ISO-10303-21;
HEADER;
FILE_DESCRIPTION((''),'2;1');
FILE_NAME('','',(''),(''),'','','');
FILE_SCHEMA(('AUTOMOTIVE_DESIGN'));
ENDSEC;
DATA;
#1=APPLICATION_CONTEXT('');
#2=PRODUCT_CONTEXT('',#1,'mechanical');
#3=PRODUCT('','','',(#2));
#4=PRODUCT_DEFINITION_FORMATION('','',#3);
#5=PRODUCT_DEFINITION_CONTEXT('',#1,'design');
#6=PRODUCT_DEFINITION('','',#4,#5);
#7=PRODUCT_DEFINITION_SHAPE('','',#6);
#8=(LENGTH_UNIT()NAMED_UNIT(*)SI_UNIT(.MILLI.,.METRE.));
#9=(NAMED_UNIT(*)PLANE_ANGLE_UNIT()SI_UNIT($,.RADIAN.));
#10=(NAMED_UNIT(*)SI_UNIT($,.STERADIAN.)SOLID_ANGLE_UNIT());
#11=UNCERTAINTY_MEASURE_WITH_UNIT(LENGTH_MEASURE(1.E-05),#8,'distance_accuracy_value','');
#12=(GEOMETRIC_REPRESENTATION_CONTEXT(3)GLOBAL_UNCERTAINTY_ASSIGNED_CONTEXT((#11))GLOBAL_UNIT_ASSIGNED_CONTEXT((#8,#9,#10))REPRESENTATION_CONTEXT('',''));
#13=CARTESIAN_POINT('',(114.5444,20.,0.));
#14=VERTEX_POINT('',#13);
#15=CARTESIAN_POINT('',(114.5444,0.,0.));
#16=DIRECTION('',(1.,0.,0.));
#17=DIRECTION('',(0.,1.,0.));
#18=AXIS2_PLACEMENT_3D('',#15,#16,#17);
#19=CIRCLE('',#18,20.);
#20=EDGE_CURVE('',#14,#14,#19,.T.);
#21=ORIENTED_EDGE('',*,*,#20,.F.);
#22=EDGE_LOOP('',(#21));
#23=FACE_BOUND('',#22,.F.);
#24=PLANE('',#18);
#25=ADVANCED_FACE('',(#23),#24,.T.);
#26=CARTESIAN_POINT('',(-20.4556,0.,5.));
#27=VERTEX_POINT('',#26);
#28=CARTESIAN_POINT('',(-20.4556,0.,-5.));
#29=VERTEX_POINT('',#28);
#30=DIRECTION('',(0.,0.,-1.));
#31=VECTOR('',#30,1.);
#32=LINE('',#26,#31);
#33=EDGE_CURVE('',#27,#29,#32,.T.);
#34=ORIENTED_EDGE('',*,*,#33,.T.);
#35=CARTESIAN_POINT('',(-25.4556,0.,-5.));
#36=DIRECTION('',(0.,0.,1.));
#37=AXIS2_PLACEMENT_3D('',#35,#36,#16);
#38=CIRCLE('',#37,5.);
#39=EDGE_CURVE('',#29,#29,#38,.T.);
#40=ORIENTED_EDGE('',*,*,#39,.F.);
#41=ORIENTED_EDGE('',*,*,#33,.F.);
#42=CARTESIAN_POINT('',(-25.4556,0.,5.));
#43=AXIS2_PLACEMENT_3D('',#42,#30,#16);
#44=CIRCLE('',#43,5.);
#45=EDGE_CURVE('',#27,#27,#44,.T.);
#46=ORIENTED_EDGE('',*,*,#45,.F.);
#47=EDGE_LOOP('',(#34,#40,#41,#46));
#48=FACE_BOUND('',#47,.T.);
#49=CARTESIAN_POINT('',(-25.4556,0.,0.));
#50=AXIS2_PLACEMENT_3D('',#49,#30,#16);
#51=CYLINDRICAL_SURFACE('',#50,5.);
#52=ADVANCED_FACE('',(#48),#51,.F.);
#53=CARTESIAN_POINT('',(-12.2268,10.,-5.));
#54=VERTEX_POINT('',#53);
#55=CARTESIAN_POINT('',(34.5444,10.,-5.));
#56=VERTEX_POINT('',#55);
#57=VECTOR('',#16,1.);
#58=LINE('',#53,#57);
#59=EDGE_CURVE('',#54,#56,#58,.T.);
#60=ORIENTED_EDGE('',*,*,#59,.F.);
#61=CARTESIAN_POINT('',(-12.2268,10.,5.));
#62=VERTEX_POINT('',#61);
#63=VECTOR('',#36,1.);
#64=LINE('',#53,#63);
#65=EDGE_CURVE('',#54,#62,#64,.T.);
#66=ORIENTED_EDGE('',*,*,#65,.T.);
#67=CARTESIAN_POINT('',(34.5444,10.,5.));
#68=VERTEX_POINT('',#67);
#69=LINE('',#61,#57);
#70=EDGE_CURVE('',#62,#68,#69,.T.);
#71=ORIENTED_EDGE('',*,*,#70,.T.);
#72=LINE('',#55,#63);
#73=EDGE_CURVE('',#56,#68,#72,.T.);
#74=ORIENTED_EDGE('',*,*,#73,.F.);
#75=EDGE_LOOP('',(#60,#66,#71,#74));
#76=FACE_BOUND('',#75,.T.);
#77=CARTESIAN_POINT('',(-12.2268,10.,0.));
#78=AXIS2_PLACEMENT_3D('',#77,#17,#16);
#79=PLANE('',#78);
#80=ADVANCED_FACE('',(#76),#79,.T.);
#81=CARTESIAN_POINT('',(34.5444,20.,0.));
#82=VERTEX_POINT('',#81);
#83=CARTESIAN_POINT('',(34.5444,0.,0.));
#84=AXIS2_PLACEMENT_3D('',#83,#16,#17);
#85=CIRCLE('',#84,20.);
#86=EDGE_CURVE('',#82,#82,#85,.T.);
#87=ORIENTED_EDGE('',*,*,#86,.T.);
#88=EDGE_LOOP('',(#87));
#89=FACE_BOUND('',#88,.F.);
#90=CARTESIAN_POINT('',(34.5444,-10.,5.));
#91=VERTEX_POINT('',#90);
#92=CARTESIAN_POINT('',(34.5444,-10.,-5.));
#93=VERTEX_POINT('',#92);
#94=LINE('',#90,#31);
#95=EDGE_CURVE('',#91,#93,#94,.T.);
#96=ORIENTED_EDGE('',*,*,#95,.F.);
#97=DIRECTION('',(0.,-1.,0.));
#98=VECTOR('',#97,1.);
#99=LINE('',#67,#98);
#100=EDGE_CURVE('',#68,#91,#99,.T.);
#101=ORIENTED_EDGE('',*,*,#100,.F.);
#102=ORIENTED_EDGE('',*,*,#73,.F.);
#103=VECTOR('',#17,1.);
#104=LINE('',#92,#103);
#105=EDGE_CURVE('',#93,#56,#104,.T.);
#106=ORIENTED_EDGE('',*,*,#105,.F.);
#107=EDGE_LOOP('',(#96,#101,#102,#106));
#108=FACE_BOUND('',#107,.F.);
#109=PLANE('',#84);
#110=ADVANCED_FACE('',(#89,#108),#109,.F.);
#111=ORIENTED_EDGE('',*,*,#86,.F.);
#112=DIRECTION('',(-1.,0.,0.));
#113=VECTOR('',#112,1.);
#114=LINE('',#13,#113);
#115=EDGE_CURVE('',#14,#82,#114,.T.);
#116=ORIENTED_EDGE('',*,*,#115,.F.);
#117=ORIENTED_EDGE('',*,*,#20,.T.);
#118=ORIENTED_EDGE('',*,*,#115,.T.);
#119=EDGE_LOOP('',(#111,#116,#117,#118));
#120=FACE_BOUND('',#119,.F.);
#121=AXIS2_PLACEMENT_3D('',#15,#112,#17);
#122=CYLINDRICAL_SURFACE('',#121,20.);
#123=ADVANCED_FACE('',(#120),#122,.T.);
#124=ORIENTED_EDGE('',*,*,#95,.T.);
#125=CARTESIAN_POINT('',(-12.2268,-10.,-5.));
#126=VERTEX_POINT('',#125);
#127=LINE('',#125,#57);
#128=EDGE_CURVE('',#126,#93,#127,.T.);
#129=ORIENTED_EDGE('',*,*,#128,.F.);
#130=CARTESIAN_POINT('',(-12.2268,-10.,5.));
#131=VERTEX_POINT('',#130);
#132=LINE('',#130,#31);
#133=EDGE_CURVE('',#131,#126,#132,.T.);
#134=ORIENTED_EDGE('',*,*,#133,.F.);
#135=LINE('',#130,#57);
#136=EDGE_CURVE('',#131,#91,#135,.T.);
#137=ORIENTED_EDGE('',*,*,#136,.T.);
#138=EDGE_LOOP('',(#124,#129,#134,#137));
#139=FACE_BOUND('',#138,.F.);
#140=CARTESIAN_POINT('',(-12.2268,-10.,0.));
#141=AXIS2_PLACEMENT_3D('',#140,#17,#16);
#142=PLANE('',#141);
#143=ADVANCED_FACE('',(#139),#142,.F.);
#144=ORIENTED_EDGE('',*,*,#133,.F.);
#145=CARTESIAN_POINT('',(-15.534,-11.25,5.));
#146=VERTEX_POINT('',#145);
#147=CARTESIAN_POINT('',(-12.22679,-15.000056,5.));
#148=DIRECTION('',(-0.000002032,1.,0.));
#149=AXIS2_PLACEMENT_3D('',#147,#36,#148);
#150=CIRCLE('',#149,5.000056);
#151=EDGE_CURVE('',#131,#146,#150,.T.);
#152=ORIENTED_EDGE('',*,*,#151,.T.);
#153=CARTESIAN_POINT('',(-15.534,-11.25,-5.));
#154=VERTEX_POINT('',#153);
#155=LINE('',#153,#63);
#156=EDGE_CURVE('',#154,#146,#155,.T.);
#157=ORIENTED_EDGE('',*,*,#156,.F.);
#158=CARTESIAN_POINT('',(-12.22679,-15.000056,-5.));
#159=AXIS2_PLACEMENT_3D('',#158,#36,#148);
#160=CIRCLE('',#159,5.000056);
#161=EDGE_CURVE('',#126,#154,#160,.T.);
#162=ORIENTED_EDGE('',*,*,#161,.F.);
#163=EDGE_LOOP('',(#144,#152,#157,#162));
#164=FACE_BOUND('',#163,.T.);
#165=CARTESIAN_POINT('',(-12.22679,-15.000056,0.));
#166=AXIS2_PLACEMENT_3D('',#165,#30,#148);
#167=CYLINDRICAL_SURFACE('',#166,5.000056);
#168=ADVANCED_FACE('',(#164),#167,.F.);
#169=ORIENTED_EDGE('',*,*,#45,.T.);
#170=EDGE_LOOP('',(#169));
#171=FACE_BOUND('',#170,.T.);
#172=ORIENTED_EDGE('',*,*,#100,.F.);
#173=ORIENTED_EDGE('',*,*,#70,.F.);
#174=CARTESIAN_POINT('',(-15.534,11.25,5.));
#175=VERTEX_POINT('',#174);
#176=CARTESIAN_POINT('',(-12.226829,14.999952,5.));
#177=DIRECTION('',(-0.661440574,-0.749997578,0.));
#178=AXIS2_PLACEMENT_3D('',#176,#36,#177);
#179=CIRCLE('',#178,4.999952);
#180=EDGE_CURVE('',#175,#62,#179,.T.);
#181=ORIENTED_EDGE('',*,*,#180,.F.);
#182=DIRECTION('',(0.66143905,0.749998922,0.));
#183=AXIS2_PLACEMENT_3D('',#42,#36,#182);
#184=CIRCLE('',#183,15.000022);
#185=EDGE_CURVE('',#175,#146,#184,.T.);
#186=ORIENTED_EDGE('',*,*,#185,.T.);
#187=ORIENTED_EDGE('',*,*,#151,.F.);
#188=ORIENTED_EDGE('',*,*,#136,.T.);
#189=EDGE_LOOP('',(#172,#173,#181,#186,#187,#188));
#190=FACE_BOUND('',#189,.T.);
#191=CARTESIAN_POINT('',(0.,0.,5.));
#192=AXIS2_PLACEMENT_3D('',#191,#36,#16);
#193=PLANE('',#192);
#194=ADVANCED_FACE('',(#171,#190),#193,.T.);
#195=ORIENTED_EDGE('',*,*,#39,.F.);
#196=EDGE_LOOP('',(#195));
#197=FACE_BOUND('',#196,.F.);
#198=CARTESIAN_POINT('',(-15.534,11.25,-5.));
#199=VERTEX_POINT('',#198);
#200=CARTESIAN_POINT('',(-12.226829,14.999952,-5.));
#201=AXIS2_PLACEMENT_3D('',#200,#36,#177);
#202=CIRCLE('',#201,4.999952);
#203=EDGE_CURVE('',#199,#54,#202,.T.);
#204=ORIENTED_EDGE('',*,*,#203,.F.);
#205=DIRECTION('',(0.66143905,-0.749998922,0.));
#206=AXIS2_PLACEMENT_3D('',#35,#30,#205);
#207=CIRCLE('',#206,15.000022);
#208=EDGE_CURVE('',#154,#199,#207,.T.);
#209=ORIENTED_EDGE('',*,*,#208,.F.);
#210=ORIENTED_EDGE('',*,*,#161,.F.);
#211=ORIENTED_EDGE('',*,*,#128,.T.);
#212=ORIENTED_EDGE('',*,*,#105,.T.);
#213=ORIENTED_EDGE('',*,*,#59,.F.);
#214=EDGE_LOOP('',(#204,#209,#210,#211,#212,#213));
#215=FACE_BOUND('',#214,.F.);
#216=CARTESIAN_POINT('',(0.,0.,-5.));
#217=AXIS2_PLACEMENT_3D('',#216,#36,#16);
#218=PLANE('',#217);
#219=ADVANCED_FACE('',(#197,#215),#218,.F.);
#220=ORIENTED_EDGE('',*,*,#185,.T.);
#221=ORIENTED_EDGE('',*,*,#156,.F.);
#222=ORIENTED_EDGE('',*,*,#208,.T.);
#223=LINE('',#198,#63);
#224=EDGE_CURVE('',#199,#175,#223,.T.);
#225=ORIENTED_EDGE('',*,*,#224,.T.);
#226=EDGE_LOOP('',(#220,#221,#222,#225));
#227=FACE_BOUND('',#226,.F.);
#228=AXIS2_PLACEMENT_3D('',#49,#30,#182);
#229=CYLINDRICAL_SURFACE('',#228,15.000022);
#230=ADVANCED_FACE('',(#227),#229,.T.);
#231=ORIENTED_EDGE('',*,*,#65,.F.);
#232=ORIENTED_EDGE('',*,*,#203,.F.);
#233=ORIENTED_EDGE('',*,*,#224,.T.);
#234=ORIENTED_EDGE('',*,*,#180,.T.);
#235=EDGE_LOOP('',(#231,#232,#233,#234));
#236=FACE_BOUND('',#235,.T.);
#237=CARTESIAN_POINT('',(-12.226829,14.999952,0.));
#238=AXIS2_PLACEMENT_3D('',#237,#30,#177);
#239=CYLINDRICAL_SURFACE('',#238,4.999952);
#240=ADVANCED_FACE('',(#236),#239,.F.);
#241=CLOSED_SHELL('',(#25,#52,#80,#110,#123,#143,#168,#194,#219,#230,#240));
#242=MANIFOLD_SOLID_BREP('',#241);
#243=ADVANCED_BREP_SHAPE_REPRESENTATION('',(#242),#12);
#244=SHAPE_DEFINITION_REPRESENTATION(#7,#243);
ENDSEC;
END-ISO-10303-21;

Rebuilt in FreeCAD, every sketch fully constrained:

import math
import FreeCAD as App
import Part
import Sketcher

V = App.Vector
Q = App.Units.Quantity


def add_polygon(sketch, points):
    """Adds a closed chain of lines whose ends are joined by coincident constraints."""
    first, n = sketch.GeometryCount, len(points)
    for a, b in zip(points, points[1:] + points[:1]):
        sketch.addGeometry(Part.LineSegment(App.Vector(*a, 0), App.Vector(*b, 0)), False)
    for i in range(n):
        sketch.addConstraint(Sketcher.Constraint("Coincident", first + i, 2, first + (i + 1) % n, 1))

doc = App.newDocument("Part")
params = doc.addObject("Spreadsheet::Sheet", "Params")
for row, (alias, value) in enumerate([
    ("sketch1_diameter", "10 mm"),
    ("sketch1_radius", "15 mm"),
    ("sketch1_height", "20 mm"),
    ("pad1_length", "5 mm"),
    ("pad1_length2", "5 mm"),
    ("sketch2_width", "80 mm"),
    ("sketch2_height", "20 mm"),
    ("revolution_angle", "360 deg"),
], start=1):
    params.set(f"A{row}", alias)
    params.set(f"B{row}", "=" + value)
    params.setAlias(f"B{row}", alias)

body = doc.addObject("PartDesign::Body", "Body")

# Sketch on XY plane
sketch1 = body.newObject("Sketcher::SketchObject", "Sketch")
sketch1.AttachmentSupport = (doc.getObject("XY_Plane"), [""])
sketch1.MapMode = "FlatFace"
sketch1.addGeometry([
    Part.LineSegment(V(34.5, 10, 0), V(-12.2, 10, 0)),  # 0
    Part.ArcOfCircle(Part.Circle(V(-12.2, 15, 0), V(0, 0, 1), 5), math.radians(-131), math.radians(-90)),  # 1
    Part.ArcOfCircle(Part.Circle(V(-25.5, 0, 0), V(0, 0, 1), 15), math.radians(49), math.radians(311)),  # 2
    Part.ArcOfCircle(Part.Circle(V(-12.2, -15, 0), V(0, 0, 1), 5), math.radians(90), math.radians(131)),  # 3
    Part.LineSegment(V(-12.2, -10, 0), V(34.5, -10, 0)),  # 4
    Part.LineSegment(V(34.5, -10, 0), V(34.5, 10, 0)),  # 5
    Part.Circle(V(-25.5, 0, 0), V(0, 0, 1), 5),  # 6
], False)
sketch1.addConstraint([
    Sketcher.Constraint("Tangent", 0, 2, 1, 2),
    Sketcher.Constraint("Tangent", 1, 1, 2, 1),
    Sketcher.Constraint("Tangent", 2, 2, 3, 2),
    Sketcher.Constraint("Tangent", 3, 1, 4, 1),
    Sketcher.Constraint("Coincident", 4, 2, 5, 1),
    Sketcher.Constraint("Coincident", 5, 2, 0, 1),
    Sketcher.Constraint("Horizontal", 0),
    Sketcher.Constraint("Horizontal", 4),
    Sketcher.Constraint("Vertical", 5),
    Sketcher.Constraint("Coincident", 6, 3, 2, 3),
    Sketcher.Constraint("Equal", 1, 3),
    Sketcher.Constraint("Equal", 3, 6),
    Sketcher.Constraint("Symmetric", 1, 3, 3, 3, -1),
    Sketcher.Constraint("Diameter", 6, Q("10 mm")),
    Sketcher.Constraint("Radius", 2, Q("15 mm")),
    Sketcher.Constraint("DistanceY", 5, 1, 5, 2, Q("20 mm")),
    Sketcher.Constraint("DistanceX", 0, 2, 0, 1, Q("46.7712 mm")),
    Sketcher.Constraint("DistanceX", 1, 1, -1, 1, Q("15.534 mm")),
])
sketch1.setExpression("Constraints[13]", "Params.sketch1_diameter")
sketch1.setExpression("Constraints[14]", "Params.sketch1_radius")
sketch1.setExpression("Constraints[15]", "Params.sketch1_height")
pad1 = body.newObject("PartDesign::Pad", "Pad")
pad1.Profile = sketch1
pad1.Type = "TwoLengths"
pad1.setExpression("Length", "Params.pad1_length")
pad1.setExpression("Length2", "Params.pad1_length2")

# Sketch on XY plane
sketch2 = body.newObject("Sketcher::SketchObject", "Sketch001")
sketch2.AttachmentSupport = (doc.getObject("XY_Plane"), [""])
sketch2.MapMode = "FlatFace"
add_polygon(sketch2, [(35, 20), (35, 0), (115, 0), (115, 20)])  # lines 0-3
sketch2.addConstraint([
    Sketcher.Constraint("Vertical", 0),
    Sketcher.Constraint("Horizontal", 1),
    Sketcher.Constraint("Vertical", 2),
    Sketcher.Constraint("Horizontal", 3),
    Sketcher.Constraint("PointOnObject", 0, 2, -1),
    Sketcher.Constraint("DistanceX", 1, 1, 1, 2, Q("80 mm")),
    Sketcher.Constraint("DistanceY", 0, 2, 0, 1, Q("20 mm")),
    Sketcher.Constraint("DistanceX", -1, 1, 0, 2, Q("34.5444 mm")),
])
sketch2.setExpression("Constraints[9]", "Params.sketch2_width")
sketch2.setExpression("Constraints[10]", "Params.sketch2_height")
revolution = body.newObject("PartDesign::Revolution", "Revolution")
revolution.Profile = sketch2
revolution.ReferenceAxis = (sketch2, ["H_Axis"])
revolution.setExpression("Angle", "Params.revolution_angle")

doc.recompute()
